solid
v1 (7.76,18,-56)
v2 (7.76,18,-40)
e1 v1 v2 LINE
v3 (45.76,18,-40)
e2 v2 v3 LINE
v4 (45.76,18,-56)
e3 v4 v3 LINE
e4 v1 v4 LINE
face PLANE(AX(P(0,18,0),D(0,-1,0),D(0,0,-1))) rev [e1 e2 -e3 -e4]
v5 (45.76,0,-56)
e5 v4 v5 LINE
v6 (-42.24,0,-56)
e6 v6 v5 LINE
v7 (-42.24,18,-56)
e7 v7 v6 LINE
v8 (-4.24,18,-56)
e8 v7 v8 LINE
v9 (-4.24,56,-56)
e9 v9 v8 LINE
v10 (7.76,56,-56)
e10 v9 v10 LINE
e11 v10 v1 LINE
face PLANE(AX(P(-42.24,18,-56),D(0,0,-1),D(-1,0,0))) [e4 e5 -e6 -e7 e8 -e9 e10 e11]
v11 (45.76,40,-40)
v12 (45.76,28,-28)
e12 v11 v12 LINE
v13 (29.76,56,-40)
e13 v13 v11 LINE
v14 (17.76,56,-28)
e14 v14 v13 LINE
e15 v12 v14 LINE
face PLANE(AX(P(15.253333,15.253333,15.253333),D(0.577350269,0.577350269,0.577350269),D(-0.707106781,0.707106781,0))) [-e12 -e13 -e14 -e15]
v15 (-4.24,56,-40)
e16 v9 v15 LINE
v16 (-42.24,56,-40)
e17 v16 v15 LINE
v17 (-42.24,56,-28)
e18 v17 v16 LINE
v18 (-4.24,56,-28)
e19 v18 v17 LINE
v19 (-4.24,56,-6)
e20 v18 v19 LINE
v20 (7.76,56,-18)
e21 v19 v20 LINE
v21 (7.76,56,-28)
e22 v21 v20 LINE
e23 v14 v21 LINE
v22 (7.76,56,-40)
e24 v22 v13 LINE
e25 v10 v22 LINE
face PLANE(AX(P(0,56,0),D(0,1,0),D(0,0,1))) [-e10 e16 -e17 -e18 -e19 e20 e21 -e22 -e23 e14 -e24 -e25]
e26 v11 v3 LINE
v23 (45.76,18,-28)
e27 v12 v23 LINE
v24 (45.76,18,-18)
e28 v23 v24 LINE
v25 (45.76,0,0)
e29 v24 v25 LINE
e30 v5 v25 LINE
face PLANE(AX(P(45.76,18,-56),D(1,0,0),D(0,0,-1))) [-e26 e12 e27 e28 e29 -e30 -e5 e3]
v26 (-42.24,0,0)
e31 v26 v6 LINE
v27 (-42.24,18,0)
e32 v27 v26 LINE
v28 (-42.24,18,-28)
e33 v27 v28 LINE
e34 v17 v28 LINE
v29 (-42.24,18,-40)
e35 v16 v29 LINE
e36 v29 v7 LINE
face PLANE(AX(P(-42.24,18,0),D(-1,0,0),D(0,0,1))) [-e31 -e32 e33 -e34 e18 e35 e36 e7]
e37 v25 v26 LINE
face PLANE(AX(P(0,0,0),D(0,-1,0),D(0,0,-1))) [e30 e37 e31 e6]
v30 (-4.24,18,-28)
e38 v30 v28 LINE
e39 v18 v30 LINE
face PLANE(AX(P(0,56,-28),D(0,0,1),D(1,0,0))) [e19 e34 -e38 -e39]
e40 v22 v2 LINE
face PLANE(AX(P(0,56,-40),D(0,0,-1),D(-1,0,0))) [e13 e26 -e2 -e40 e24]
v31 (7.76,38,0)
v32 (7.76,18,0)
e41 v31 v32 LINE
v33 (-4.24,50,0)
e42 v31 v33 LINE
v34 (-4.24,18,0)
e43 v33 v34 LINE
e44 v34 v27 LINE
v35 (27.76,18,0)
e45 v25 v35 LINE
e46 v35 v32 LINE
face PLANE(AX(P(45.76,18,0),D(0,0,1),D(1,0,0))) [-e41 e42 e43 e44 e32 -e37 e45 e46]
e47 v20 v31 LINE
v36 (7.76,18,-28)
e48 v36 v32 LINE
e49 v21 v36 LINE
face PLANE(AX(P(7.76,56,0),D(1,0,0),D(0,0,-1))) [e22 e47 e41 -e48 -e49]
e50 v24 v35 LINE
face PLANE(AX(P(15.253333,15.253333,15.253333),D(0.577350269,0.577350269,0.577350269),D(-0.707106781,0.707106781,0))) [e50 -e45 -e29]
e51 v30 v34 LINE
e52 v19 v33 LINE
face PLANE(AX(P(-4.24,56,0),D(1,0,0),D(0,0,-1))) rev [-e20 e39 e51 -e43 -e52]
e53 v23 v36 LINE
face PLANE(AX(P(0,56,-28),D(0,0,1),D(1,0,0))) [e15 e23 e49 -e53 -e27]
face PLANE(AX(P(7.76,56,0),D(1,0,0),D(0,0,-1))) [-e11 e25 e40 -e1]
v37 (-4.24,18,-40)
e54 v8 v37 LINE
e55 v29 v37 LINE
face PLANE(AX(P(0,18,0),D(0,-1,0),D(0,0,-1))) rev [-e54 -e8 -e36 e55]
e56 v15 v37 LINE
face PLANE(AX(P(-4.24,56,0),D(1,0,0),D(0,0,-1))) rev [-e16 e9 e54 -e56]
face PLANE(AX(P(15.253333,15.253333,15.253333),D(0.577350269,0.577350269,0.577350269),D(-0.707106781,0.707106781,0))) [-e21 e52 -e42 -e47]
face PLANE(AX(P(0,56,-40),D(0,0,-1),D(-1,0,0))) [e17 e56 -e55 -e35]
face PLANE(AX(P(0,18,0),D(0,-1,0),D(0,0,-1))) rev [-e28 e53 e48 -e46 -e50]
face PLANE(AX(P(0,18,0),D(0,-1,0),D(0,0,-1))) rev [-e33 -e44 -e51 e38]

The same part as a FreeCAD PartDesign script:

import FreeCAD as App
import Part
import Sketcher


def add_polygon(sketch, points):
    """Adds a closed chain of lines whose ends are joined by coincident constraints."""
    first, n = sketch.GeometryCount, len(points)
    for a, b in zip(points, points[1:] + points[:1]):
        sketch.addGeometry(Part.LineSegment(App.Vector(*a, 0), App.Vector(*b, 0)), False)
    for i in range(n):
        sketch.addConstraint(Sketcher.Constraint("Coincident", first + i, 2, first + (i + 1) % n, 1))

doc = App.newDocument("Part")
params = doc.addObject("Spreadsheet::Sheet", "Params")
for row, (alias, value) in enumerate([
    ("sketch1_width", "88 mm"),
    ("sketch1_height", "56 mm"),
    ("pad1_length", "18 mm"),
    ("sketch2_width", "38 mm"),
    ("sketch2_width2", "12 mm"),
    ("sketch2_height", "28 mm"),
    ("sketch2_height2", "16 mm"),
    ("pad2_length", "56 mm"),
    ("pocket1_length", "56 mm"),
], start=1):
    params.set(f"A{row}", alias)
    params.set(f"B{row}", "=" + value)
    params.setAlias(f"B{row}", alias)

body = doc.addObject("PartDesign::Body", "Body")

# Sketch on XZ plane
sketch1 = doc.addObject("Sketcher::SketchObject", "Sketch")
body.addObject(sketch1)
sketch1.AttachmentSupport = (doc.XZ_Plane, [""])
sketch1.MapMode = "FlatFace"
add_polygon(sketch1, [(-42, -56), (-42, 0), (46, 0), (46, -56)])  # lines 0-3
sketch1.addConstraint(Sketcher.Constraint("Vertical", 0))
sketch1.addConstraint(Sketcher.Constraint("Horizontal", 1))
sketch1.addConstraint(Sketcher.Constraint("Vertical", 2))
sketch1.addConstraint(Sketcher.Constraint("Horizontal", 3))
sketch1.addConstraint(Sketcher.Constraint("PointOnObject", 0, 2, -1))
sketch1.addConstraint(Sketcher.Constraint("DistanceX", 1, 1, 1, 2, 88.0))
sketch1.addConstraint(Sketcher.Constraint("DistanceY", 0, 1, 0, 2, 56.0))
sketch1.addConstraint(Sketcher.Constraint("DistanceX", 0, 2, -1, 1, 42.24))
sketch1.setExpression("Constraints[9]", "Params.sketch1_width")
sketch1.setExpression("Constraints[10]", "Params.sketch1_height")
pad1 = doc.addObject("PartDesign::Pad", "Pad")
body.addObject(pad1)
pad1.Profile = sketch1
pad1.setExpression("Length", "Params.pad1_length")
pad1.Reversed = True

# Sketch on XZ plane
sketch2 = doc.addObject("Sketcher::SketchObject", "Sketch001")
body.addObject(sketch2)
sketch2.AttachmentSupport = (doc.XZ_Plane, [""])
sketch2.MapMode = "FlatFace"
add_polygon(sketch2, [(-42, -40), (-42, -28), (-4, -28), (-4, 0), (8, 0), (8, -28), (46, -28), (46, -40), (8, -40), (8, -56), (-4, -56), (-4, -40)])  # lines 0-11
sketch2.addConstraint(Sketcher.Constraint("Vertical", 0))
sketch2.addConstraint(Sketcher.Constraint("Horizontal", 1))
sketch2.addConstraint(Sketcher.Constraint("Vertical", 2))
sketch2.addConstraint(Sketcher.Constraint("Horizontal", 3))
sketch2.addConstraint(Sketcher.Constraint("Vertical", 4))
sketch2.addConstraint(Sketcher.Constraint("Horizontal", 5))
sketch2.addConstraint(Sketcher.Constraint("Vertical", 6))
sketch2.addConstraint(Sketcher.Constraint("Horizontal", 7))
sketch2.addConstraint(Sketcher.Constraint("Vertical", 8))
sketch2.addConstraint(Sketcher.Constraint("Horizontal", 9))
sketch2.addConstraint(Sketcher.Constraint("Vertical", 10))
sketch2.addConstraint(Sketcher.Constraint("Horizontal", 11))
sketch2.addConstraint(Sketcher.Constraint("PointOnObject", 2, 2, -1))
sketch2.addConstraint(Sketcher.Constraint("Horizontal", 1, 2, 4, 2))
sketch2.addConstraint(Sketcher.Constraint("Horizontal", 7, 2, 10, 2))
sketch2.addConstraint(Sketcher.Constraint("Vertical", 4, 2, 7, 2))
sketch2.addConstraint(Sketcher.Constraint("Vertical", 2, 2, 9, 2))
sketch2.addConstraint(Sketcher.Constraint("Equal", 1, 5))
sketch2.addConstraint(Sketcher.Constraint("Equal", 9, 0))
sketch2.addConstraint(Sketcher.Constraint("DistanceX", 1, 1, 1, 2, 38.0))
sketch2.addConstraint(Sketcher.Constraint("DistanceX", 3, 1, 3, 2, 12.0))
sketch2.addConstraint(Sketcher.Constraint("DistanceY", 2, 1, 2, 2, 28.0))
sketch2.addConstraint(Sketcher.Constraint("DistanceY", 8, 2, 8, 1, 16.0))
sketch2.addConstraint(Sketcher.Constraint("DistanceX", 0, 2, -1, 1, 42.24))
sketch2.setExpression("Constraints[31]", "Params.sketch2_width")
sketch2.setExpression("Constraints[32]", "Params.sketch2_width2")
sketch2.setExpression("Constraints[33]", "Params.sketch2_height")
sketch2.setExpression("Constraints[34]", "Params.sketch2_height2")
pad2 = doc.addObject("PartDesign::Pad", "Pad001")
body.addObject(pad2)
pad2.Profile = sketch2
pad2.setExpression("Length", "Params.pad2_length")
pad2.Reversed = True

# Sketch on an angled plane
sketch3 = doc.addObject("Sketcher::SketchObject", "Sketch002")
body.addObject(sketch3)
sketch3.Placement = App.Placement(App.Vector(15.253333, 15.253333, 15.253333), App.Rotation(App.Vector(0.40824829, 0.40824829, -0.816496581), App.Vector(-0.707106781, 0.707106781, 0), App.Vector(0.577350269, 0.577350269, 0.577350269), "ZXY"))
add_polygon(sketch3, [(-47, 72), (-47, -57), (114, -57), (114, 72)])  # lines 0-3
sketch3.addConstraint(Sketcher.Constraint("Vertical", 0))
sketch3.addConstraint(Sketcher.Constraint("Horizontal", 1))
sketch3.addConstraint(Sketcher.Constraint("Vertical", 2))
sketch3.addConstraint(Sketcher.Constraint("Horizontal", 3))
sketch3.addConstraint(Sketcher.Constraint("DistanceY", -1, 1, 2, 2, 71.528101))
sketch3.addConstraint(Sketcher.Constraint("DistanceX", 1, 1, 1, 2, 161.292606))
sketch3.addConstraint(Sketcher.Constraint("DistanceY", 0, 2, 0, 1, 128.574655))
sketch3.addConstraint(Sketcher.Constraint("DistanceX", 0, 2, -1, 1, 47.267923))
pocket1 = doc.addObject("PartDesign::Pocket", "Pocket")
body.addObject(pocket1)
pocket1.Profile = sketch3
pocket1.setExpression("Length", "Params.pocket1_length")
pocket1.Reversed = True

doc.recompute()
